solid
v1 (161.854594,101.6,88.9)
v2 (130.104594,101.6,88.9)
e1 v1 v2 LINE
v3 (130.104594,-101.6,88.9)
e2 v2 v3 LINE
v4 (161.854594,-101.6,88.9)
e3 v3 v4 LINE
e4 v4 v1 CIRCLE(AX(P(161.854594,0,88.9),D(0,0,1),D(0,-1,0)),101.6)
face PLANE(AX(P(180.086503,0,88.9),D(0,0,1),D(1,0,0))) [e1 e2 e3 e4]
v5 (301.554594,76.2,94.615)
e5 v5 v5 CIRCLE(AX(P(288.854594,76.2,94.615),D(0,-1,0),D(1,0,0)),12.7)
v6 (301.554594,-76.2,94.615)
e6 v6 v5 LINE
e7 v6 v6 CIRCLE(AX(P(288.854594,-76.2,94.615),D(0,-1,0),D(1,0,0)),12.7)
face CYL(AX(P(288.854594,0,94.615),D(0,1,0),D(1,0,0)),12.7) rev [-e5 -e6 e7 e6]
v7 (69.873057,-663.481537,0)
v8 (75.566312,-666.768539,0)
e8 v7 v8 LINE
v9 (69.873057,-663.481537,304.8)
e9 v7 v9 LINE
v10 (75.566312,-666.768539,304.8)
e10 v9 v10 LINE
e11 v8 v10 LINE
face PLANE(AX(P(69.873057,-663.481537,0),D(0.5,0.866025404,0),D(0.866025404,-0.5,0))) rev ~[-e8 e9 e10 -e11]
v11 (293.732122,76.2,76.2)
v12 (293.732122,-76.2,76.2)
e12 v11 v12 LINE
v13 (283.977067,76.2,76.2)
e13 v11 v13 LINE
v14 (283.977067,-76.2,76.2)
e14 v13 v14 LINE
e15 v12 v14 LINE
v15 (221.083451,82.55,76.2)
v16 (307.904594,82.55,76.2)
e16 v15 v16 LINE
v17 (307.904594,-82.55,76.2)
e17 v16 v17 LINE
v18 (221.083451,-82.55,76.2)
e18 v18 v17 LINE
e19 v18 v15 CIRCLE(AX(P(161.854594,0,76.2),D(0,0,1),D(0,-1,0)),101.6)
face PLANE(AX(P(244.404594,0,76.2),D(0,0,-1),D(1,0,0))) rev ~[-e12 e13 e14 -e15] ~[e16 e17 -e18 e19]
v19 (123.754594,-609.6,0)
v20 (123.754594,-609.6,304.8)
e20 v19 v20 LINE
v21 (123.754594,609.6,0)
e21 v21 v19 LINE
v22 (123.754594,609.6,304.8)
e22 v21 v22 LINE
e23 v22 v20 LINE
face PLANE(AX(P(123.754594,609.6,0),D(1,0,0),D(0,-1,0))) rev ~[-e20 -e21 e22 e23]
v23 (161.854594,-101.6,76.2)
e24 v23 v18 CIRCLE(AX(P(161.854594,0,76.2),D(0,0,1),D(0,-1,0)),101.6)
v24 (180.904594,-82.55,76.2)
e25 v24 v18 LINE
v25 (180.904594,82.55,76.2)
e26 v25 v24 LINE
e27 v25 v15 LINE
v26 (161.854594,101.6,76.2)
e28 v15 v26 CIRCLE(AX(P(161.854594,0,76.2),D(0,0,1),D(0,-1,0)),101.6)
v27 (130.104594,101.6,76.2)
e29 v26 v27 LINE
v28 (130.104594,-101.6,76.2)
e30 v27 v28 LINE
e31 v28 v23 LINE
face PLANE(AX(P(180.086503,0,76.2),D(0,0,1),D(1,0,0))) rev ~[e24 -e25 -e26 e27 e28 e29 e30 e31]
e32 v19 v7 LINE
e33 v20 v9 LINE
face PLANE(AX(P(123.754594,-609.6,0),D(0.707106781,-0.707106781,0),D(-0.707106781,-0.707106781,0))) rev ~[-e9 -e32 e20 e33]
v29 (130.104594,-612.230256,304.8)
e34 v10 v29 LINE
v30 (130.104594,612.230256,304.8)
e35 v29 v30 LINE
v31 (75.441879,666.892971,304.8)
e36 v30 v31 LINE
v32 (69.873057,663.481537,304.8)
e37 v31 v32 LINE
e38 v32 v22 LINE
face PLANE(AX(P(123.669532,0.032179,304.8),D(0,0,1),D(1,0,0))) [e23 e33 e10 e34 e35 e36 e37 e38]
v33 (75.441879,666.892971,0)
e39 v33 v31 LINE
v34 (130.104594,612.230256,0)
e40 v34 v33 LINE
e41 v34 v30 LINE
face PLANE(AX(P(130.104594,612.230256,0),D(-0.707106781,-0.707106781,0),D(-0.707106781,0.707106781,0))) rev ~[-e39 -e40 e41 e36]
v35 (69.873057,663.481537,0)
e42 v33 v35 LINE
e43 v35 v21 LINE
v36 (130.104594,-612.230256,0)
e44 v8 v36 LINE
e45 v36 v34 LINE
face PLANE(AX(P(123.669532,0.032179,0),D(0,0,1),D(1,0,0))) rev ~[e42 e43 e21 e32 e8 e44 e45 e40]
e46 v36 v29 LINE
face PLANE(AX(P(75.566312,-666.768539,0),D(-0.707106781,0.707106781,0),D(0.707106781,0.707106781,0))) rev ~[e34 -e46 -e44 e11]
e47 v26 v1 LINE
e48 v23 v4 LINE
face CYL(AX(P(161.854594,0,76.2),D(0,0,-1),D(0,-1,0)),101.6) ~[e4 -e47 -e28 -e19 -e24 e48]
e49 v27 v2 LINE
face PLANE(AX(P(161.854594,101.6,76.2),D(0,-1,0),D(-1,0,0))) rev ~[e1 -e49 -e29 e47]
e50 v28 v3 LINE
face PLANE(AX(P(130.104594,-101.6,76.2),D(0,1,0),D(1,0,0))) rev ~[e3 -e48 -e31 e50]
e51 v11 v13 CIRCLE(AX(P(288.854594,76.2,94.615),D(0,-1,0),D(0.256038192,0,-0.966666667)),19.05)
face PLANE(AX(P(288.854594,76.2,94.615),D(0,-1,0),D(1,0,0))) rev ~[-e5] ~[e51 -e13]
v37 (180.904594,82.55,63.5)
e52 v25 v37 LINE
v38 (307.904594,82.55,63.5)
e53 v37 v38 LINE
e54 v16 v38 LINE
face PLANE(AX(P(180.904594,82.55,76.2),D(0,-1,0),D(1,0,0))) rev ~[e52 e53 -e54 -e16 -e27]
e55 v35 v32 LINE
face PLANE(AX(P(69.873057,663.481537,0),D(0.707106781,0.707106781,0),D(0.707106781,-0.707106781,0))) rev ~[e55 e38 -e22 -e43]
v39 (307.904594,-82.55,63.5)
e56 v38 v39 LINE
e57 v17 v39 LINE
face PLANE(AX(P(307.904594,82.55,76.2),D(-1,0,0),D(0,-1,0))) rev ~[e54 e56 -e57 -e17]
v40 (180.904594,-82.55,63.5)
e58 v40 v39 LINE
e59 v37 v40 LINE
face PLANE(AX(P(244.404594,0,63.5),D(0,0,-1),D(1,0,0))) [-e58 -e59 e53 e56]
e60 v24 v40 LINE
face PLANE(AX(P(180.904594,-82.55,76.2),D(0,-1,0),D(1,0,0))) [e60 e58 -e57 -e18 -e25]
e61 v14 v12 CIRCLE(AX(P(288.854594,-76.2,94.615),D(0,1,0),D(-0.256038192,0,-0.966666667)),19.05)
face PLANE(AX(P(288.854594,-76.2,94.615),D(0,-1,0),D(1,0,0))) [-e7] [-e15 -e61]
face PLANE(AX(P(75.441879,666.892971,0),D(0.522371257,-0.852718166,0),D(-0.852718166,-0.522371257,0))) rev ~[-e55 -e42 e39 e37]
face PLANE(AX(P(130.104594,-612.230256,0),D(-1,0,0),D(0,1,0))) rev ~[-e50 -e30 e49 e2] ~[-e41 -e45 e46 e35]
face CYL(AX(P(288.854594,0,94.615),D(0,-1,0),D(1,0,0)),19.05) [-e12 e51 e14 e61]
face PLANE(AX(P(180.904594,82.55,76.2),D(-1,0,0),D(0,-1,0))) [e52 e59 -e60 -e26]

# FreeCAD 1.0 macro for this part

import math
import FreeCAD as App
import Part
import Sketcher
Q = App.Units.Quantity

doc = App.newDocument("Part")
params = doc.addObject("Spreadsheet::Sheet", "Params")
for row, (alias, value) in enumerate([
    ("sketch1_height", "48 in"),
    ("sketch1_length", "3 in"),
    ("pad1_length", "12 in"),
    ("sketch2_radius", "4 in"),
    ("sketch2_width", "1.25 in"),
    ("pad2_length", "0.5 in"),
    ("sketch3_width", "5 in"),
    ("sketch3_height", "6.5 in"),
    ("pad3_length", "0.5 in"),
    ("sketch4_diameter", "1 in"),
    ("sketch4_diameter2", "1.5 in"),
    ("pad4_length", "6 in"),
], start=1):
    params.set(f"A{row}", alias)
    params.set(f"B{row}", "=" + value)
    params.setAlias(f"B{row}", alias)

body = doc.addObject("PartDesign::Body", "Body")

sketch1 = body.newObject("Sketcher::SketchObject", "Sketch")
sketch1.AttachmentSupport = (doc.getObject("XY_Plane"), [""])
sketch1.MapMode = "FlatFace"
sketch1.addGeometry([
    Part.LineSegment(App.Vector(123.754594, 609.6, 0), App.Vector(123.754594, -609.6, 0)),
    Part.LineSegment(App.Vector(123.754594, -609.6, 0), App.Vector(69.873057, -663.481537, 0)),
    Part.LineSegment(App.Vector(69.873057, -663.481537, 0), App.Vector(75.566312, -666.768539, 0)),
    Part.LineSegment(App.Vector(75.566312, -666.768539, 0), App.Vector(130.104594, -612.230256, 0)),
    Part.LineSegment(App.Vector(130.104594, -612.230256, 0), App.Vector(130.104594, 612.230256, 0)),
    Part.LineSegment(App.Vector(130.104594, 612.230256, 0), App.Vector(75.441879, 666.892971, 0)),
    Part.LineSegment(App.Vector(75.441879, 666.892971, 0), App.Vector(69.873057, 663.481537, 0)),
    Part.LineSegment(App.Vector(69.873057, 663.481537, 0), App.Vector(123.754594, 609.6, 0)),
], False)
sketch1.addConstraint([
    Sketcher.Constraint("Coincident", 0, 2, 1, 1),
    Sketcher.Constraint("Coincident", 1, 2, 2, 1),
    Sketcher.Constraint("Coincident", 2, 2, 3, 1),
    Sketcher.Constraint("Coincident", 3, 2, 4, 1),
    Sketcher.Constraint("Coincident", 4, 2, 5, 1),
    Sketcher.Constraint("Coincident", 5, 2, 6, 1),
    Sketcher.Constraint("Coincident", 6, 2, 7, 1),
    Sketcher.Constraint("Coincident", 7, 2, 0, 1),
    Sketcher.Constraint("Vertical", 0),
    Sketcher.Constraint("Vertical", 4),
    Sketcher.Constraint("Symmetric", 1, 2, 6, 2, -1),
    Sketcher.Constraint("Parallel", 1, 3),
    Sketcher.Constraint("Perpendicular", 3, 5),
    Sketcher.Constraint("Parallel", 5, 7),
    Sketcher.Constraint("Equal", 1, 7),
    Sketcher.Constraint("DistanceY", 0, 2, 0, 1, Q("48 in")),
    Sketcher.Constraint("Distance", 1, Q("3 in")),
    Sketcher.Constraint("Angle", 2, Q("-30 deg")),
    Sketcher.Constraint("DistanceX", 0, 2, 3, 2, Q("0.25 in")),
    Sketcher.Constraint("DistanceY", 2, 2, 1, 2, 3.287002),
    Sketcher.Constraint("Distance", 6, 6.530671),
    Sketcher.Constraint("DistanceY", 4, 1, 4, 2, 1224.460512),
    Sketcher.Constraint("DistanceX", -1, 1, 2, 2, 75.566312),
])
sketch1.setExpression("Constraints[15]", "Params.sketch1_height")
sketch1.setExpression("Constraints[16]", "Params.sketch1_length")
pad1 = body.newObject("PartDesign::Pad", "Pad")
pad1.Profile = sketch1
pad1.setExpression("Length", "Params.pad1_length")

sketch2 = body.newObject("Sketcher::SketchObject", "Sketch001")
sketch2.AttachmentSupport = (doc.getObject("XY_Plane"), [""])
sketch2.MapMode = "FlatFace"
sketch2.AttachmentOffset = App.Placement(App.Vector(0, 0, 3 * 25.4), App.Rotation())
sketch2.addGeometry([
    Part.LineSegment(App.Vector(130.104594, 101.6, 0), App.Vector(130.104594, -101.6, 0)),
    Part.LineSegment(App.Vector(130.104594, -101.6, 0), App.Vector(161.854594, -101.6, 0)),
    Part.ArcOfCircle(Part.Circle(App.Vector(161.854594, 0, 0), App.Vector(0, 0, 1), 101.6), math.radians(-90), math.radians(90)),
    Part.LineSegment(App.Vector(161.854594, 101.6, 0), App.Vector(130.104594, 101.6, 0)),
], False)
sketch2.addConstraint([
    Sketcher.Constraint("Coincident", 0, 2, 1, 1),
    Sketcher.Constraint("Tangent", 1, 2, 2, 1),
    Sketcher.Constraint("Tangent", 2, 2, 3, 1),
    Sketcher.Constraint("Coincident", 3, 2, 0, 1),
    Sketcher.Constraint("Vertical", 0),
    Sketcher.Constraint("Horizontal", 1),
    Sketcher.Constraint("Horizontal", 3),
    Sketcher.Constraint("PointOnObject", 2, 3, -1),
    Sketcher.Constraint("Radius", 2, Q("4 in")),
    Sketcher.Constraint("DistanceX", 1, 1, 1, 2, Q("1.25 in")),
    Sketcher.Constraint("DistanceX", -1, 1, 2, 3, 161.854594),
])
sketch2.setExpression("Constraints[8]", "Params.sketch2_radius")
sketch2.setExpression("Constraints[9]", "Params.sketch2_width")
pad2 = body.newObject("PartDesign::Pad", "Pad001")
pad2.Profile = sketch2
pad2.setExpression("Length", "Params.pad2_length")

sketch3 = body.newObject("Sketcher::SketchObject", "Sketch002")
sketch3.AttachmentSupport = (doc.getObject("XY_Plane"), [""])
sketch3.MapMode = "FlatFace"
sketch3.AttachmentOffset = App.Placement(App.Vector(0, 0, 3 * 25.4), App.Rotation())
sketch3.addGeometry([
    Part.LineSegment(App.Vector(180.904594, -82.55, 0), App.Vector(180.904594, 82.55, 0)),
    Part.LineSegment(App.Vector(180.904594, 82.55, 0), App.Vector(307.904594, 82.55, 0)),
    Part.LineSegment(App.Vector(307.904594, 82.55, 0), App.Vector(307.904594, -82.55, 0)),
    Part.LineSegment(App.Vector(307.904594, -82.55, 0), App.Vector(180.904594, -82.55, 0)),
], False)
sketch3.addConstraint([
    Sketcher.Constraint("Coincident", 0, 2, 1, 1),
    Sketcher.Constraint("Coincident", 1, 2, 2, 1),
    Sketcher.Constraint("Coincident", 2, 2, 3, 1),
    Sketcher.Constraint("Coincident", 3, 2, 0, 1),
    Sketcher.Constraint("Vertical", 0),
    Sketcher.Constraint("Horizontal", 1),
    Sketcher.Constraint("Vertical", 2),
    Sketcher.Constraint("Horizontal", 3),
    Sketcher.Constraint("DistanceX", 1, 1, 1, 2, Q("5 in")),
    Sketcher.Constraint("DistanceY", 0, 1, 0, 2, Q("6.5 in")),
    Sketcher.Constraint("DistanceY", -1, 1, 0, 2, Q("3.25 in")),
    Sketcher.Constraint("DistanceX", -1, 1, 0, 2, 180.904594),
])
sketch3.setExpression("Constraints[8]", "Params.sketch3_width")
sketch3.setExpression("Constraints[9]", "Params.sketch3_height")
pad3 = body.newObject("PartDesign::Pad", "Pad002")
pad3.Profile = sketch3
pad3.setExpression("Length", "Params.pad3_length")
pad3.Reversed = True

sketch4 = body.newObject("Sketcher::SketchObject", "Sketch003")
sketch4.AttachmentSupport = (doc.getObject("XZ_Plane"), [""])
sketch4.MapMode = "FlatFace"
sketch4.addGeometry([
    Part.Circle(App.Vector(288.854594, 94.615, 0), App.Vector(0, 0, 1), 19.05),
    Part.Circle(App.Vector(288.854594, 94.615, 0), App.Vector(0, 0, 1), 12.7),
], False)
sketch4.addConstraint([
    Sketcher.Constraint("Coincident", 1, 3, 0, 3),
    Sketcher.Constraint("Diameter", 1, Q("1 in")),
    Sketcher.Constraint("Diameter", 0, Q("1.5 in")),
    Sketcher.Constraint("DistanceY", -1, 1, 0, 3, Q("3.725 in")),
    Sketcher.Constraint("DistanceX", -1, 1, 0, 3, 288.854594),
])
sketch4.setExpression("Constraints[1]", "Params.sketch4_diameter")
sketch4.setExpression("Constraints[2]", "Params.sketch4_diameter2")
pad4 = body.newObject("PartDesign::Pad", "Pad003")
pad4.Profile = sketch4
pad4.setExpression("Length", "Params.pad4_length")
pad4.Midplane = True

doc.recompute()
